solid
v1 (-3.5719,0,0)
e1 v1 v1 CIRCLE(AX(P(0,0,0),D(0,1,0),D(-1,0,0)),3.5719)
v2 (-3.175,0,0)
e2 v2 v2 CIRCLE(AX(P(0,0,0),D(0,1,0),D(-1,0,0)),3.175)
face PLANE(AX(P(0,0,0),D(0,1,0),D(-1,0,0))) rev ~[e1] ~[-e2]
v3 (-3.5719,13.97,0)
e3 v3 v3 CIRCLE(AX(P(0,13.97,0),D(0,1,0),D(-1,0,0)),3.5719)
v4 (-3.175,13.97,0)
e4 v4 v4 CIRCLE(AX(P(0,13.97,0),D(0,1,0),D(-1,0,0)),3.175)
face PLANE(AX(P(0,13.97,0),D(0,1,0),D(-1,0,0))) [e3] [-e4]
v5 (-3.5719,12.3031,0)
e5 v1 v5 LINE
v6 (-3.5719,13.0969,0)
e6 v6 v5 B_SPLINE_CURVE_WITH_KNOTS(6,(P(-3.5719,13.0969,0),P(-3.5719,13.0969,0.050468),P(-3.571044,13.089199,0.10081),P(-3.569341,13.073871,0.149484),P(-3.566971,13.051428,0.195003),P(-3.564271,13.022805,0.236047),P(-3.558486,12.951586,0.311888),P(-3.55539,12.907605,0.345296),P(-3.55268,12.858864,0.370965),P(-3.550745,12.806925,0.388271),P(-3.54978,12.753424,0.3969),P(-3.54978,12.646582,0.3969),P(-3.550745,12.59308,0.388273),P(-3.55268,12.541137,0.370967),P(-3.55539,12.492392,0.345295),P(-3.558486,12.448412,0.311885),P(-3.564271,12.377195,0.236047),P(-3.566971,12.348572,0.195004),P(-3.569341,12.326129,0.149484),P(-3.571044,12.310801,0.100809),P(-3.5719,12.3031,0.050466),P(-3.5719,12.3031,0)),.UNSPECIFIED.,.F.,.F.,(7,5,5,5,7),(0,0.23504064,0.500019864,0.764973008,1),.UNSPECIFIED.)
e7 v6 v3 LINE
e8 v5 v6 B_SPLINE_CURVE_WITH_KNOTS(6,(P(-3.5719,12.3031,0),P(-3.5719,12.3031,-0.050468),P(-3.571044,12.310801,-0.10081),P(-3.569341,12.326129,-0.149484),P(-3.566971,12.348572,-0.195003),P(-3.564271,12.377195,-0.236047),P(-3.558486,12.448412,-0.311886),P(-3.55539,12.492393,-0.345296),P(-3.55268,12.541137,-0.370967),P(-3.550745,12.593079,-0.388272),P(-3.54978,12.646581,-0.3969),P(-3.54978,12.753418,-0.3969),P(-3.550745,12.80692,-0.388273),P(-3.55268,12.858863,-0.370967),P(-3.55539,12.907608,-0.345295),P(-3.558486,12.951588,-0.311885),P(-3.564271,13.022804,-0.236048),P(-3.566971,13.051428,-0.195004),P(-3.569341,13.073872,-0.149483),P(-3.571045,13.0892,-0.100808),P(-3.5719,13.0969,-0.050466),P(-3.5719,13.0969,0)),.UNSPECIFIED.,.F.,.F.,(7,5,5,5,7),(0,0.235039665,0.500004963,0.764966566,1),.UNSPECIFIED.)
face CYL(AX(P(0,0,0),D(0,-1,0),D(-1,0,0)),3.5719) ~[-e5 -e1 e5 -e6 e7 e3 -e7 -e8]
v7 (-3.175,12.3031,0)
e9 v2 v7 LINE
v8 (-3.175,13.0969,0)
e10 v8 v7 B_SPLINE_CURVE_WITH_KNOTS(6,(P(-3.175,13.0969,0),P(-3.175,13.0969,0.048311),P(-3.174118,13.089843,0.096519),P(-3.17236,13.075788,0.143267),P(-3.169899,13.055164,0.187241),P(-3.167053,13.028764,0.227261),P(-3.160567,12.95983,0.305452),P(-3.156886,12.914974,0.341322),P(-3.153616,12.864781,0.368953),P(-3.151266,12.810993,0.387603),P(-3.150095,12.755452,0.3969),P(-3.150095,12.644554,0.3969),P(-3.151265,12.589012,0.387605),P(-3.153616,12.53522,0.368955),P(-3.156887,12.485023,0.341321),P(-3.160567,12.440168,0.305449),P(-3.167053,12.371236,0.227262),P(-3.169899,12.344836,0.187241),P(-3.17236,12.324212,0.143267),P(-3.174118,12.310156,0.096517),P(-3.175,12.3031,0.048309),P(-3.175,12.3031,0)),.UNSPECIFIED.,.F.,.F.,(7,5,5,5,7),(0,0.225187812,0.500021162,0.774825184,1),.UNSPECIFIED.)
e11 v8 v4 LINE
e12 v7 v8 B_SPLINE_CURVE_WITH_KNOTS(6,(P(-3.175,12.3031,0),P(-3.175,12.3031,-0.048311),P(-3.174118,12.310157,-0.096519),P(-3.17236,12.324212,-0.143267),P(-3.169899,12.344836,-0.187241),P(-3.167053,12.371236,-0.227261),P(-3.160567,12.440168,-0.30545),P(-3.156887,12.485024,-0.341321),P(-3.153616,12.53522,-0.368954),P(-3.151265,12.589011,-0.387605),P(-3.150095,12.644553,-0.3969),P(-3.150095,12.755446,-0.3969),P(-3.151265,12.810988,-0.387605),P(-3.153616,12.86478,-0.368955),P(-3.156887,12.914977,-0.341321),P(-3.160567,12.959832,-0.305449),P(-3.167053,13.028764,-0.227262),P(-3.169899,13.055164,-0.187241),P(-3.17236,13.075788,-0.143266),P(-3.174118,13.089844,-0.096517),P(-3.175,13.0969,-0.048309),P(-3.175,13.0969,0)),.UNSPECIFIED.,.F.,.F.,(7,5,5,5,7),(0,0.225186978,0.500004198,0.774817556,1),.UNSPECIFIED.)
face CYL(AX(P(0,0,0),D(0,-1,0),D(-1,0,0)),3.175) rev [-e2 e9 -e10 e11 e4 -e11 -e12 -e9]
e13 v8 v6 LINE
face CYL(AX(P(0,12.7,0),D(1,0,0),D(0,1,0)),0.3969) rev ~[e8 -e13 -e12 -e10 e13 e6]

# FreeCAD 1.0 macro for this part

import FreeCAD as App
import Part
import Sketcher
from FreeCAD import Vector
Q = App.Units.Quantity

doc = App.newDocument("Part")
body = doc.addObject("PartDesign::Body", "Body")

# Sketch on XZ plane
sketch1 = doc.addObject("Sketcher::SketchObject", "Sketch")
body.addObject(sketch1)
sketch1.AttachmentSupport = (doc.XZ_Plane, [""])
sketch1.MapMode = "FlatFace"
sketch1.addGeometry([
    Part.Circle(Vector(0, 0, 0), Vector(0, 0, 1), 3.6),
    Part.Circle(Vector(0, 0, 0), Vector(0, 0, 1), 3.2),
], False)
sketch1.addConstraint([
    Sketcher.Constraint("Coincident", 0, 3, -1, 1),
    Sketcher.Constraint("Coincident", 1, 3, -1, 1),
    Sketcher.Constraint("Diameter", 1, Q("0.25 in")),
    Sketcher.Constraint("Diameter", 0, Q("0.281252 in")),
])
pad1 = doc.addObject("PartDesign::Pad", "Pad")
body.addObject(pad1)
pad1.Profile = sketch1
pad1.Length = Q("0.55 in")
pad1.Reversed = True

# Sketch on YZ plane
sketch2 = doc.addObject("Sketcher::SketchObject", "Sketch001")
body.addObject(sketch2)
sketch2.AttachmentSupport = (doc.YZ_Plane, [""])
sketch2.MapMode = "FlatFace"
sketch2.addGeometry(Part.Circle(Vector(12.7, 0, 0), Vector(0, 0, 1), 0.4), False)
sketch2.addConstraint([
    Sketcher.Constraint("PointOnObject", 0, 3, -1),
    Sketcher.Constraint("Diameter", 0, Q("0.031252 in")),
    Sketcher.Constraint("DistanceX", -1, 1, 0, 3, Q("0.5 in")),
])
pocket1 = doc.addObject("PartDesign::Pocket", "Pocket")
body.addObject(pocket1)
pocket1.Profile = sketch2
pocket1.Length = Q("1 in")

doc.recompute()
